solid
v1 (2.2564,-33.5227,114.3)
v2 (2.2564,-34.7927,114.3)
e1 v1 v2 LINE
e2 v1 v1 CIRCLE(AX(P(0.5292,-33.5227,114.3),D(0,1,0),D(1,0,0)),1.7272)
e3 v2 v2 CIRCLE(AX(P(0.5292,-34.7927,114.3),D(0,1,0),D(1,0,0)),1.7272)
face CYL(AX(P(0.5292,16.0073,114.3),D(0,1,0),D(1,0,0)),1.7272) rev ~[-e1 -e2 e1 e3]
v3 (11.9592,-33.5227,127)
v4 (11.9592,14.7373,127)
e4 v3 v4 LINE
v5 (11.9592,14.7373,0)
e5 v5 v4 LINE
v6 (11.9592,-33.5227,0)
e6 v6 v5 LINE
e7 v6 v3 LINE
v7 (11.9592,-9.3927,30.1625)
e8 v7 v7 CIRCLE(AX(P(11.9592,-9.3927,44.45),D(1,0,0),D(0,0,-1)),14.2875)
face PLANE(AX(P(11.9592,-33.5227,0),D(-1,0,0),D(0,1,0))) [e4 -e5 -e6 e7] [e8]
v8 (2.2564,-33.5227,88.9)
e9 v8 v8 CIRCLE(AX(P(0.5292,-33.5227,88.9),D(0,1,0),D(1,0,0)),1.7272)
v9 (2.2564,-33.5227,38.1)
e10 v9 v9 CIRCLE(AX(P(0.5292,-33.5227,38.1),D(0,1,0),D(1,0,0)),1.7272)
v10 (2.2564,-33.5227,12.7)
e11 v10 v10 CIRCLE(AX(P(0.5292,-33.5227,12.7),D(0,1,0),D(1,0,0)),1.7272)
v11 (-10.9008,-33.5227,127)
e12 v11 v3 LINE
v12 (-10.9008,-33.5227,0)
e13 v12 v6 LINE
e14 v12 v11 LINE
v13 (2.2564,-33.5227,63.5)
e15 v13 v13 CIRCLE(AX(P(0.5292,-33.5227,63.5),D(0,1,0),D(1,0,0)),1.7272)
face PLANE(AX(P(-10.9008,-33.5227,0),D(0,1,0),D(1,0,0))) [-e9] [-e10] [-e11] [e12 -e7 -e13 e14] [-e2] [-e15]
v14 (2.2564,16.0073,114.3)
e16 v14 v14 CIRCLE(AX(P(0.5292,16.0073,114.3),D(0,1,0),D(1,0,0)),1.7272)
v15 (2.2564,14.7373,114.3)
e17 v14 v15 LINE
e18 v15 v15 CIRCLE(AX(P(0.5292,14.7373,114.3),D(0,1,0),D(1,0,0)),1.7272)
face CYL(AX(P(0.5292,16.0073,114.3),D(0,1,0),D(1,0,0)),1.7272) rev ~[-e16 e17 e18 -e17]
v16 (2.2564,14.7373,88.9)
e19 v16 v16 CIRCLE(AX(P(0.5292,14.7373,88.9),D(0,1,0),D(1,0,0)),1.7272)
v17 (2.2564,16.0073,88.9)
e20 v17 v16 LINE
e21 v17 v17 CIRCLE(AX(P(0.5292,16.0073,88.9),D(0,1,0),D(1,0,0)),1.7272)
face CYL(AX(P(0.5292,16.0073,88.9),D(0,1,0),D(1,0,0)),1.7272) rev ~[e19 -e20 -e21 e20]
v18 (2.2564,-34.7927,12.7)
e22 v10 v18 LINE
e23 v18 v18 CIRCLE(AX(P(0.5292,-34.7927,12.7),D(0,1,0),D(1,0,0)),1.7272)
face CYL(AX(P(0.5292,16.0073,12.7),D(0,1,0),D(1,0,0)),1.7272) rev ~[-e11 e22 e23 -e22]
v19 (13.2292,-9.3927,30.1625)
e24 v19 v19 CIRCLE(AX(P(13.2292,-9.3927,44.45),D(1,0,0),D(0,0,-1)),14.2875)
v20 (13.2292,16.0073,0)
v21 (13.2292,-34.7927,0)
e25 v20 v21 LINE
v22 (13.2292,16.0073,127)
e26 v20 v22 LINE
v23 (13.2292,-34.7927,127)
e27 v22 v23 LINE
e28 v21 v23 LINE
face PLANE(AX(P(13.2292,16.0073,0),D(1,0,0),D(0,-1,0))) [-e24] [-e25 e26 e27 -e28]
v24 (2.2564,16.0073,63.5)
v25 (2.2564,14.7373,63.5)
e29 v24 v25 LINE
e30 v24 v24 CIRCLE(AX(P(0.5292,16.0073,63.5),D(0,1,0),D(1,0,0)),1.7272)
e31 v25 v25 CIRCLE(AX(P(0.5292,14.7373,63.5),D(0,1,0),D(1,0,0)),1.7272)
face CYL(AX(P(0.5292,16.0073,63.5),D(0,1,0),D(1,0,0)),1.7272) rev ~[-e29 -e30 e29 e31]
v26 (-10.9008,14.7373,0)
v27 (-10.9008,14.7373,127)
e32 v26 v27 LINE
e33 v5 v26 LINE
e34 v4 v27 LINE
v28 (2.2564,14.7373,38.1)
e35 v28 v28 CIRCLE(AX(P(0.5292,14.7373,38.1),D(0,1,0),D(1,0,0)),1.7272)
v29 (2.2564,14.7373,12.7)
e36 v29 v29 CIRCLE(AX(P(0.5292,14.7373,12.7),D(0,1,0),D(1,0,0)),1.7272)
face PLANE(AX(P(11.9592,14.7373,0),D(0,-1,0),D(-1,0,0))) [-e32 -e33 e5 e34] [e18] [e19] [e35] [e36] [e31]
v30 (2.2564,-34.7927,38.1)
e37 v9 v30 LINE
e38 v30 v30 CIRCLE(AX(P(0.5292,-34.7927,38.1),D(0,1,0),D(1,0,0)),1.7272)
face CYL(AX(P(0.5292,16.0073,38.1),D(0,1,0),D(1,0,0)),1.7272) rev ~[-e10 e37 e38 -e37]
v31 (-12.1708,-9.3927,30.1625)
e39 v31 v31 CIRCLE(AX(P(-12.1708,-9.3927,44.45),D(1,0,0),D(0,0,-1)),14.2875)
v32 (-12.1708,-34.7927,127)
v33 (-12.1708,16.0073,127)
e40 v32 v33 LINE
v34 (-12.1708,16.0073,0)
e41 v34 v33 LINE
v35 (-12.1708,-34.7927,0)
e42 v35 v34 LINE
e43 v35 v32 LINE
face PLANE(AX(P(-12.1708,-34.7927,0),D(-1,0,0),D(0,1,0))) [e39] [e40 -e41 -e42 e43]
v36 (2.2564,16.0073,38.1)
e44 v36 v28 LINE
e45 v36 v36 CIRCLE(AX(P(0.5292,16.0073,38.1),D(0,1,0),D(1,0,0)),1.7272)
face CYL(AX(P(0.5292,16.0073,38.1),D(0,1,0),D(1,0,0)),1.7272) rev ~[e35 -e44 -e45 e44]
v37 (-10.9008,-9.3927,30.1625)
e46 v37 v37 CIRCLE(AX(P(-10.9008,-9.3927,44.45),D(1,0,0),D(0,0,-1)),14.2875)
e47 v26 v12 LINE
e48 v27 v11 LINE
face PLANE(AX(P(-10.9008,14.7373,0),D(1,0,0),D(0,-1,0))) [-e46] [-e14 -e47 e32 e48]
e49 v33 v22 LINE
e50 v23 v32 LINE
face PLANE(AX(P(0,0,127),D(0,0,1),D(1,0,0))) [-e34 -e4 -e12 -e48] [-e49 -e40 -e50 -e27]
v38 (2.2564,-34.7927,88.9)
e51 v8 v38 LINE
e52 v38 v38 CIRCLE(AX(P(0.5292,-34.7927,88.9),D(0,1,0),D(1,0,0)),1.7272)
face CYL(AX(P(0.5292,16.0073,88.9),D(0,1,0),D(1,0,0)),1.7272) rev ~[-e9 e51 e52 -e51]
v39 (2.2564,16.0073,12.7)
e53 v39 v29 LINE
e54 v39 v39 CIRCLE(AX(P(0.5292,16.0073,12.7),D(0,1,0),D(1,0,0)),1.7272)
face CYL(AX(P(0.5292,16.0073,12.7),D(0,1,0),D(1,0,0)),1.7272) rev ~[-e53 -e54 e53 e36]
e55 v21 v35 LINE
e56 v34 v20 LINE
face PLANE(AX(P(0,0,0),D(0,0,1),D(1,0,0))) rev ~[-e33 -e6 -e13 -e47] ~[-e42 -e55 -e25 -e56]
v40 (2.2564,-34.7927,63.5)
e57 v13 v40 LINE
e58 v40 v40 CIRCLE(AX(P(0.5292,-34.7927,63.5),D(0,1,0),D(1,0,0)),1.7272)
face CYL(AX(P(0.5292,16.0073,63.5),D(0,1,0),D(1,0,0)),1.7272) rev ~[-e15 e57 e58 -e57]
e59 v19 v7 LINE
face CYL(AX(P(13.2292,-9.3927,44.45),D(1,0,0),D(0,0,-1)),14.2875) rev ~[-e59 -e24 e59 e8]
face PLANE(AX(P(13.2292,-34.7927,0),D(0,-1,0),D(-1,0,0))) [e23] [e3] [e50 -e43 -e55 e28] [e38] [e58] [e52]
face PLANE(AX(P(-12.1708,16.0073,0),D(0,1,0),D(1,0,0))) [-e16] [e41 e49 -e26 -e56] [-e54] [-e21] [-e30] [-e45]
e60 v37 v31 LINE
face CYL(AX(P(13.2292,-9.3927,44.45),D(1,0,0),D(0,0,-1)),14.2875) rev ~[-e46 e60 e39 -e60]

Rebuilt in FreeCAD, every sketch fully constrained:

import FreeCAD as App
import Part
import Sketcher
from FreeCAD import Vector
Q = App.Units.Quantity


def add_polygon(sketch, points):
    """Adds a closed chain of lines whose ends are joined by coincident constraints."""
    first, n = sketch.GeometryCount, len(points)
    for a, b in zip(points, points[1:] + points[:1]):
        sketch.addGeometry(Part.LineSegment(App.Vector(*a, 0), App.Vector(*b, 0)), False)
    for i in range(n):
        sketch.addConstraint(Sketcher.Constraint("Coincident", first + i, 2, first + (i + 1) % n, 1))

doc = App.newDocument("Part")
body = doc.addObject("PartDesign::Body", "Body")

sketch1 = body.newObject("Sketcher::SketchObject", "Sketch")
sketch1.AttachmentSupport = (doc.getObject("XY_Plane"), [""])
sketch1.MapMode = "FlatFace"
add_polygon(sketch1, [(13, 16), (-12, 16), (-12, -35), (13, -35)])
add_polygon(sketch1, [(-11, 15), (12, 15), (12, -34), (-11, -34)])
sketch1.addConstraint([
    Sketcher.Constraint("Horizontal", 0),
    Sketcher.Constraint("Vertical", 1),
    Sketcher.Constraint("Horizontal", 2),
    Sketcher.Constraint("Vertical", 3),
    Sketcher.Constraint("Horizontal", 4),
    Sketcher.Constraint("Vertical", 5),
    Sketcher.Constraint("Horizontal", 6),
    Sketcher.Constraint("Vertical", 7),
    Sketcher.Constraint("DistanceX", 0, 2, 0, 1, Q("1 in")),
    Sketcher.Constraint("DistanceY", 1, 2, 1, 1, Q("2 in")),
    Sketcher.Constraint("DistanceX", 4, 2, 3, 2, Q("0.05 in")),
    Sketcher.Constraint("DistanceY", 4, 2, 3, 2, Q("0.05 in")),
    Sketcher.Constraint("DistanceY", 2, 2, 5, 2, Q("0.05 in")),
    Sketcher.Constraint("DistanceX", 1, 2, 6, 2, Q("0.05 in")),
    Sketcher.Constraint("DistanceY", -1, 1, 0, 2, Q("0.6302 in")),
    Sketcher.Constraint("DistanceX", 0, 2, -1, 1, 12.1708),
])
pad1 = body.newObject("PartDesign::Pad", "Pad")
pad1.Profile = sketch1
pad1.Length = Q("5 in")

sketch2 = body.newObject("Sketcher::SketchObject", "Sketch001")
sketch2.AttachmentSupport = (doc.getObject("XZ_Plane"), [""])
sketch2.MapMode = "FlatFace"
sketch2.AttachmentOffset = App.Placement(Vector(0, 0, -0.6302087 * 25.4), App.Rotation())
sketch2.addGeometry(Part.Circle(Vector(0.5, 12.7, 0), Vector(0, 0, 1), 1.7), False)
sketch2.addConstraint([
    Sketcher.Constraint("Diameter", 0, Q("0.136 in")),
    Sketcher.Constraint("DistanceY", -1, 1, 0, 3, Q("0.5 in")),
    Sketcher.Constraint("DistanceX", -1, 1, 0, 3, 0.5292),
])
pocket1 = body.newObject("PartDesign::Pocket", "Pocket")
pocket1.Profile = sketch2
pocket1.Type = "ThroughAll"
pocket1.Reversed = True
doc.recompute()

linearpattern = body.newObject("PartDesign::LinearPattern", "LinearPattern")
linearpattern.Originals = [pocket1]
linearpattern.Direction = (doc.getObject("Z_Axis"), [""])
linearpattern.Mode = "offset"
linearpattern.Offset = Q("1 in")
linearpattern.Occurrences = 13
body.Tip = linearpattern

sketch3 = body.newObject("Sketcher::SketchObject", "Sketch002")
sketch3.AttachmentSupport = (doc.getObject("YZ_Plane"), [""])
sketch3.MapMode = "FlatFace"
sketch3.AttachmentOffset = App.Placement(Vector(0, 0, 13.2292), App.Rotation())
sketch3.addGeometry(Part.Circle(Vector(-9, 44, 0), Vector(0, 0, 1), 14), False)
sketch3.addConstraint([
    Sketcher.Constraint("Diameter", 0, Q("1.125 in")),
    Sketcher.Constraint("DistanceY", -1, 1, 0, 3, Q("1.75 in")),
    Sketcher.Constraint("DistanceX", 0, 3, -1, 1, Q("0.3698 in")),
])
pocket2 = body.newObject("PartDesign::Pocket", "Pocket001")
pocket2.Profile = sketch3
pocket2.Length = Q("1 in")

doc.recompute()
